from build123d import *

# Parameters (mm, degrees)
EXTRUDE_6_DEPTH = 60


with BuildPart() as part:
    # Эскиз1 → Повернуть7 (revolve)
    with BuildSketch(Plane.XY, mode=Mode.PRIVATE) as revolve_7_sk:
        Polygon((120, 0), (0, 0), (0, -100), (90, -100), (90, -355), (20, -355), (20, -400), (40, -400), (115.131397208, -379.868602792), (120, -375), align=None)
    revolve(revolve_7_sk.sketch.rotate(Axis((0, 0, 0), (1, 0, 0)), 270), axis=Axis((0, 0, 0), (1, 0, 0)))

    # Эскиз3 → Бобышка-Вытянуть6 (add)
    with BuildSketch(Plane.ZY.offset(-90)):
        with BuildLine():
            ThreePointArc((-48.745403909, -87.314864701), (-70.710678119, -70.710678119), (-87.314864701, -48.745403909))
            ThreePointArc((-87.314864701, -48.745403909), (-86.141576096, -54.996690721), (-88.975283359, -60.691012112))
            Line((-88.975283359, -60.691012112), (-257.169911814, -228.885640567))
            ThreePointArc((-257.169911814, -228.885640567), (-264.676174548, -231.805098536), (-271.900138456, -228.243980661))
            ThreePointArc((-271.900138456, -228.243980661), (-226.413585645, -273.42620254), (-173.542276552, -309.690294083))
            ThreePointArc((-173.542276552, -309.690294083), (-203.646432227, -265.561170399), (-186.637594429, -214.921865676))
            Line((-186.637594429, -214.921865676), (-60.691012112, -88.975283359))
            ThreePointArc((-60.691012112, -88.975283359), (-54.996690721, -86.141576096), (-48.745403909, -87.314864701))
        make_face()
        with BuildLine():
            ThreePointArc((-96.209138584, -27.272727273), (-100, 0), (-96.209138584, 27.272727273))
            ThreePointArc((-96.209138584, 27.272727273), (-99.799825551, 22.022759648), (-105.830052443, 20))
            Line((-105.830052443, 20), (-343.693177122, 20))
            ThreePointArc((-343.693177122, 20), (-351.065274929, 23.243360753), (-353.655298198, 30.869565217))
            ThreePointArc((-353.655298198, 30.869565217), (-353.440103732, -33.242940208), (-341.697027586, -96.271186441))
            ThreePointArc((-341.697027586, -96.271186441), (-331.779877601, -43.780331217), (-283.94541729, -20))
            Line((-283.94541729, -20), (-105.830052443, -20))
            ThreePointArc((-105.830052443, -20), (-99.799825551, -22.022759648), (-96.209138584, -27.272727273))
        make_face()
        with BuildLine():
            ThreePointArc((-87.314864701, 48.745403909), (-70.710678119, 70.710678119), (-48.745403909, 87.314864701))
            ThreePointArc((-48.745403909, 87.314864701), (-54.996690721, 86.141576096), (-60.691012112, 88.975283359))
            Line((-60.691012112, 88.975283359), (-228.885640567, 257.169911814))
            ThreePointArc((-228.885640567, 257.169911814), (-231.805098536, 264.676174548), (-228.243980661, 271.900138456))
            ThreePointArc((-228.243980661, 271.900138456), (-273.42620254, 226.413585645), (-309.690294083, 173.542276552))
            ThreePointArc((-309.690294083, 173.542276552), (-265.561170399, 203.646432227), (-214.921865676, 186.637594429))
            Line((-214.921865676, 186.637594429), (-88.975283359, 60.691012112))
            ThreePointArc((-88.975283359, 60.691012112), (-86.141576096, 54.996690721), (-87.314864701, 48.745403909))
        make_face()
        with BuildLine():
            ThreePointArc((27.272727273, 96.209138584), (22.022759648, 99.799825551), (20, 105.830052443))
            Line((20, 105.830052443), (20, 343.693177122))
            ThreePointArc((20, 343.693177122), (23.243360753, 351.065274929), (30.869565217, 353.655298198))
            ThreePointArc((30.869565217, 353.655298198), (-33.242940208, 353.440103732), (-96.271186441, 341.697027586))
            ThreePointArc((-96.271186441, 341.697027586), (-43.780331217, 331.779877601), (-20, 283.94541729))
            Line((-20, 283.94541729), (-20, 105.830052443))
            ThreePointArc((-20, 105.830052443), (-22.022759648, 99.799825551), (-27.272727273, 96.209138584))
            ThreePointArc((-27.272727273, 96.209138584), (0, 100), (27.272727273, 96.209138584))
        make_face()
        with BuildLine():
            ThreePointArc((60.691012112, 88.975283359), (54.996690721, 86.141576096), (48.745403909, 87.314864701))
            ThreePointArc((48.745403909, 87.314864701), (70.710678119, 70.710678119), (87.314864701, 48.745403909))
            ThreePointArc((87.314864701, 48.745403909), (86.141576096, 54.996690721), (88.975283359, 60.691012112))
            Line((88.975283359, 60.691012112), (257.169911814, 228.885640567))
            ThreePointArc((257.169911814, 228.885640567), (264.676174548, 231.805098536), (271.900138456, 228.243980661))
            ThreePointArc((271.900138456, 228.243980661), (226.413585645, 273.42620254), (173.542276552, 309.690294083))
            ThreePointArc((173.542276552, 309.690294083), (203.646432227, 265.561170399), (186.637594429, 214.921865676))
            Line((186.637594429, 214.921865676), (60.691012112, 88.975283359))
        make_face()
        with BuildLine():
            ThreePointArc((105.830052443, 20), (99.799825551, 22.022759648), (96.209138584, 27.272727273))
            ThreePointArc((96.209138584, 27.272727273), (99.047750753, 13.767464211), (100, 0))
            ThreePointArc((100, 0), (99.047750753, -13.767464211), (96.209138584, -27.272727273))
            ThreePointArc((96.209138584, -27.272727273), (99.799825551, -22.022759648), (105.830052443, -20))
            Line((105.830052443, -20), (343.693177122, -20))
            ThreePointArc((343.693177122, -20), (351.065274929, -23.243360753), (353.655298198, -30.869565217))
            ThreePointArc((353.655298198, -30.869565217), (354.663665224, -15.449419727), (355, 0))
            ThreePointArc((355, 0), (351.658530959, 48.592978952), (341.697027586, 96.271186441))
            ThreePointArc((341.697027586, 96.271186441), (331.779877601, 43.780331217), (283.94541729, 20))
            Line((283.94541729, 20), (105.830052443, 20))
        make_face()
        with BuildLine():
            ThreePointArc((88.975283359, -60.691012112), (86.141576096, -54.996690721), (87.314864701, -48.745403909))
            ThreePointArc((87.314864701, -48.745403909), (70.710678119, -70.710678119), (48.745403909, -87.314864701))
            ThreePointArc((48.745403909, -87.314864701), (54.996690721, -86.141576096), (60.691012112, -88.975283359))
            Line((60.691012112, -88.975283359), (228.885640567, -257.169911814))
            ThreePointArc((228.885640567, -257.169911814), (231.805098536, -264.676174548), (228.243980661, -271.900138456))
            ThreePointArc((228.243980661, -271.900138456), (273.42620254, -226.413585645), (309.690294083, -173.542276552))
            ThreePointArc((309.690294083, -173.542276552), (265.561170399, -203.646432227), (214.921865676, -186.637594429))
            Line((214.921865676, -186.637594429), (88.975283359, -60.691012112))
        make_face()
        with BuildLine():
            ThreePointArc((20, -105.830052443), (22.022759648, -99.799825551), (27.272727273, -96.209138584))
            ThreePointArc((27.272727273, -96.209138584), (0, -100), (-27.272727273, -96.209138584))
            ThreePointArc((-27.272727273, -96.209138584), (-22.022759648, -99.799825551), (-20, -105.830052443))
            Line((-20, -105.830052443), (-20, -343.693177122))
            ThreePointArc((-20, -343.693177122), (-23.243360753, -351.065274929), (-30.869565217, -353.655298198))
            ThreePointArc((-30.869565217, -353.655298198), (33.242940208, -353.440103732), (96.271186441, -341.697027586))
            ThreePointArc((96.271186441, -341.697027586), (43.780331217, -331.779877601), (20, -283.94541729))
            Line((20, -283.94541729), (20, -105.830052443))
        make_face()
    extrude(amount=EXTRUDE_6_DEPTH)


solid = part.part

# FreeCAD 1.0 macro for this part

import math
import FreeCAD as App
import Part
import Sketcher

V = App.Vector
Q = App.Units.Quantity


def add_polygon(sketch, points):
    """Adds a closed chain of lines whose ends are joined by coincident constraints."""
    first, n = sketch.GeometryCount, len(points)
    for a, b in zip(points, points[1:] + points[:1]):
        sketch.addGeometry(Part.LineSegment(App.Vector(*a, 0), App.Vector(*b, 0)), False)
    for i in range(n):
        sketch.addConstraint(Sketcher.Constraint("Coincident", first + i, 2, first + (i + 1) % n, 1))

doc = App.newDocument("Part")
params = doc.addObject("Spreadsheet::Sheet", "Params")
for row, (alias, value) in enumerate([
    ("sketch1_width", "120 mm"),
    ("sketch1_width2", "90 mm"),
    ("sketch1_width3", "70 mm"),
    ("sketch1_width4", "20 mm"),
    ("sketch1_height", "100 mm"),
    ("revolution_angle", "360 deg"),
    ("sketch2_radius", "100 mm"),
    ("sketch2_radius2", "10 mm"),
    ("sketch2_radius3", "355 mm"),
    ("sketch2_radius4", "60 mm"),
    ("pad1_length", "60 mm"),
], start=1):
    params.set(f"A{row}", alias)
    params.set(f"B{row}", "=" + value)
    params.setAlias(f"B{row}", alias)

body = doc.addObject("PartDesign::Body", "Body")

# Sketch on XY plane
sketch1 = body.newObject("Sketcher::SketchObject", "Sketch")
sketch1.AttachmentSupport = (doc.getObject("XY_Plane"), [""])
sketch1.MapMode = "FlatFace"
add_polygon(sketch1, [(120, 0), (0, 0), (0, -100), (90, -100), (90, -355), (20, -355), (20, -400), (40, -400), (115.131397, -379.868603), (120, -375)])  # lines 0-9
sketch1.addConstraint(Sketcher.Constraint("Horizontal", 0))
sketch1.addConstraint(Sketcher.Constraint("Vertical", 1))
sketch1.addConstraint(Sketcher.Constraint("Horizontal", 2))
sketch1.addConstraint(Sketcher.Constraint("Vertical", 3))
sketch1.addConstraint(Sketcher.Constraint("Horizontal", 4))
sketch1.addConstraint(Sketcher.Constraint("Vertical", 5))
sketch1.addConstraint(Sketcher.Constraint("Horizontal", 6))
sketch1.addConstraint(Sketcher.Constraint("Vertical", 9))
sketch1.addConstraint(Sketcher.Constraint("Coincident", 0, 2, -1, 1))
sketch1.addConstraint(Sketcher.Constraint("DistanceX", 0, 2, 0, 1, 120.0))
sketch1.addConstraint(Sketcher.Constraint("DistanceX", 2, 1, 2, 2, 90.0))
sketch1.addConstraint(Sketcher.Constraint("DistanceX", 4, 2, 4, 1, 70.0))
sketch1.addConstraint(Sketcher.Constraint("DistanceX", 6, 1, 6, 2, 20.0))
sketch1.addConstraint(Sketcher.Constraint("DistanceY", 1, 2, 1, 1, 100.0))
sketch1.addConstraint(Sketcher.Constraint("DistanceY", 3, 2, 3, 1, 255.0))
sketch1.addConstraint(Sketcher.Constraint("DistanceY", 5, 2, 5, 1, 45.0))
sketch1.addConstraint(Sketcher.Constraint("DistanceY", 9, 1, 9, 2, 375.0))
sketch1.addConstraint(Sketcher.Constraint("Angle", 7, Q("15 deg")))
sketch1.addConstraint(Sketcher.Constraint("Angle", 8, Q("45 deg")))
sketch1.setExpression("Constraints[19]", "Params.sketch1_width")
sketch1.setExpression("Constraints[20]", "Params.sketch1_width2")
sketch1.setExpression("Constraints[21]", "Params.sketch1_width3")
sketch1.setExpression("Constraints[22]", "Params.sketch1_width4")
sketch1.setExpression("Constraints[23]", "Params.sketch1_height")
revolution = body.newObject("PartDesign::Revolution", "Revolution")
revolution.Profile = sketch1
revolution.ReferenceAxis = (sketch1, ["H_Axis"])
revolution.setExpression("Angle", "Params.revolution_angle")

# Sketch on YZ plane
sketch2 = body.newObject("Sketcher::SketchObject", "Sketch001")
sketch2.AttachmentSupport = (doc.getObject("YZ_Plane"), [""])
sketch2.MapMode = "FlatFace"
sketch2.AttachmentOffset = App.Placement(V(0, 0, 90), App.Rotation())
sketch2.addGeometry(Part.ArcOfCircle(Part.Circle(V(0, 0, 0), V(0, 0, 1), 100), math.radians(-150.82662), math.radians(-119.17338)), False)
sketch2.addGeometry(Part.ArcOfCircle(Part.Circle(V(-53.619944, -96.046351, 0), V(0, 0, 1), 10), math.radians(60.82662), math.radians(135)), False)
sketch2.addGeometry(Part.LineSegment(V(-60.691012, -88.975283, 0), V(-228.885641, -257.169912, 0)), False)
sketch2.addGeometry(Part.ArcOfCircle(Part.Circle(V(-221.814573, -264.24098, 0), V(0, 0, 1), 10), math.radians(135), math.radians(229.988542)), False)
sketch2.addGeometry(Part.ArcOfCircle(Part.Circle(V(0, 0, 0), V(0, 0, 1), 355), math.radians(-150.734879), math.radians(-130.011458)), False)
sketch2.addGeometry(Part.ArcOfCircle(Part.Circle(V(-257.348273, -144.211188, 0), V(0, 0, 1), 60), math.radians(-150.734879), math.radians(-45)), False)
sketch2.addGeometry(Part.LineSegment(V(-214.921866, -186.637594, 0), V(-88.975283, -60.691012, 0)), False)
sketch2.addGeometry(Part.ArcOfCircle(Part.Circle(V(-96.046351, -53.619944, 0), V(0, 0, 1), 10), math.radians(-45), math.radians(29.17338)), False)
sketch2.addGeometry(Part.ArcOfCircle(Part.Circle(V(0, 0, 0), V(0, 0, 1), 100), math.radians(-105.82662), math.radians(-74.17338)), False)
sketch2.addGeometry(Part.ArcOfCircle(Part.Circle(V(30, -105.830052, 0), V(0, 0, 1), 10), math.radians(105.82662), math.radians(180)), False)
sketch2.addGeometry(Part.LineSegment(V(20, -105.830052, 0), V(20, -343.693177, 0)), False)
sketch2.addGeometry(Part.ArcOfCircle(Part.Circle(V(30, -343.693177, 0), V(0, 0, 1), 10), math.radians(-180), math.radians(-85.011458)), False)
sketch2.addGeometry(Part.ArcOfCircle(Part.Circle(V(0, 0, 0), V(0, 0, 1), 355), math.radians(-105.734879), math.radians(-85.011458)), False)
sketch2.addGeometry(Part.ArcOfCircle(Part.Circle(V(-80, -283.945417, 0), V(0, 0, 1), 60), math.radians(-105.734879), math.radians(0)), False)
sketch2.addGeometry(Part.LineSegment(V(-20, -283.945417, 0), V(-20, -105.830052, 0)), False)
sketch2.addGeometry(Part.ArcOfCircle(Part.Circle(V(-30, -105.830052, 0), V(0, 0, 1), 10), math.radians(0), math.radians(74.17338)), False)
sketch2.addGeometry(Part.ArcOfCircle(Part.Circle(V(0, 0, 0), V(0, 0, 1), 100), math.radians(-60.82662), math.radians(-29.17338)), False)
sketch2.addGeometry(Part.ArcOfCircle(Part.Circle(V(96.046351, -53.619944, 0), V(0, 0, 1), 10), math.radians(150.82662), math.radians(225)), False)
sketch2.addGeometry(Part.LineSegment(V(88.975283, -60.691012, 0), V(257.169912, -228.885641, 0)), False)
sketch2.addGeometry(Part.ArcOfCircle(Part.Circle(V(264.24098, -221.814573, 0), V(0, 0, 1), 10), math.radians(-135), math.radians(-40.011458)), False)
sketch2.addGeometry(Part.ArcOfCircle(Part.Circle(V(0, 0, 0), V(0, 0, 1), 355), math.radians(-60.734879), math.radians(-40.011458)), False)
sketch2.addGeometry(Part.ArcOfCircle(Part.Circle(V(144.211188, -257.348273, 0), V(0, 0, 1), 60), math.radians(-60.734879), math.radians(45)), False)
sketch2.addGeometry(Part.LineSegment(V(186.637594, -214.921866, 0), V(60.691012, -88.975283, 0)), False)
sketch2.addGeometry(Part.ArcOfCircle(Part.Circle(V(53.619944, -96.046351, 0), V(0, 0, 1), 10), math.radians(45), math.radians(119.17338)), False)
sketch2.addGeometry(Part.ArcOfCircle(Part.Circle(V(105.830052, 30, 0), V(0, 0, 1), 10), math.radians(-164.17338), math.radians(-90)), False)
sketch2.addGeometry(Part.LineSegment(V(105.830052, 20, 0), V(343.693177, 20, 0)), False)
sketch2.addGeometry(Part.ArcOfCircle(Part.Circle(V(343.693177, 30, 0), V(0, 0, 1), 10), math.radians(-90), math.radians(4.988542)), False)
sketch2.addGeometry(Part.ArcOfCircle(Part.Circle(V(0, 0, 0), V(0, 0, 1), 355), math.radians(-15.734879), math.radians(4.988542)), False)
sketch2.addGeometry(Part.ArcOfCircle(Part.Circle(V(283.945417, -80, 0), V(0, 0, 1), 60), math.radians(-15.734879), math.radians(90)), False)
sketch2.addGeometry(Part.LineSegment(V(283.945417, -20, 0), V(105.830052, -20, 0)), False)
sketch2.addGeometry(Part.ArcOfCircle(Part.Circle(V(105.830052, -30, 0), V(0, 0, 1), 10), math.radians(90), math.radians(164.17338)), False)
sketch2.addGeometry(Part.ArcOfCircle(Part.Circle(V(0, 0, 0), V(0, 0, 1), 100), math.radians(-15.82662), math.radians(15.82662)), False)
sketch2.addGeometry(Part.ArcOfCircle(Part.Circle(V(96.046351, 53.619944, 0), V(0, 0, 1), 10), math.radians(135), math.radians(209.17338)), False)
sketch2.addGeometry(Part.ArcOfCircle(Part.Circle(V(0, 0, 0), V(0, 0, 1), 100), math.radians(29.17338), math.radians(60.82662)), False)
sketch2.addGeometry(Part.ArcOfCircle(Part.Circle(V(53.619944, 96.046351, 0), V(0, 0, 1), 10), math.radians(-119.17338), math.radians(-45)), False)
sketch2.addGeometry(Part.LineSegment(V(60.691012, 88.975283, 0), V(228.885641, 257.169912, 0)), False)
sketch2.addGeometry(Part.ArcOfCircle(Part.Circle(V(221.814573, 264.24098, 0), V(0, 0, 1), 10), math.radians(-45), math.radians(49.988542)), False)
sketch2.addGeometry(Part.ArcOfCircle(Part.Circle(V(0, 0, 0), V(0, 0, 1), 355), math.radians(29.265121), math.radians(49.988542)), False)
sketch2.addGeometry(Part.ArcOfCircle(Part.Circle(V(257.348273, 144.211188, 0), V(0, 0, 1), 60), math.radians(29.265121), math.radians(135)), False)
sketch2.addGeometry(Part.LineSegment(V(214.921866, 186.637594, 0), V(88.975283, 60.691012, 0)), False)
sketch2.addGeometry(Part.ArcOfCircle(Part.Circle(V(30, 105.830052, 0), V(0, 0, 1), 10), math.radians(180), math.radians(254.17338)), False)
sketch2.addGeometry(Part.ArcOfCircle(Part.Circle(V(0, 0, 0), V(0, 0, 1), 100), math.radians(74.17338), math.radians(90)), False)
sketch2.addGeometry(Part.ArcOfCircle(Part.Circle(V(0, 0, 0), V(0, 0, 1), 100), math.radians(90), math.radians(105.82662)), False)
sketch2.addGeometry(Part.ArcOfCircle(Part.Circle(V(-30, 105.830052, 0), V(0, 0, 1), 10), math.radians(-74.17338), math.radians(0)), False)
sketch2.addGeometry(Part.LineSegment(V(-20, 105.830052, 0), V(-20, 343.693177, 0)), False)
sketch2.addGeometry(Part.ArcOfCircle(Part.Circle(V(-30, 343.693177, 0), V(0, 0, 1), 10), math.radians(0), math.radians(94.988542)), False)
sketch2.addGeometry(Part.ArcOfCircle(Part.Circle(V(0, 0, 0), V(0, 0, 1), 355), math.radians(90), math.radians(94.988542)), False)
sketch2.addGeometry(Part.ArcOfCircle(Part.Circle(V(0, 0, 0), V(0, 0, 1), 355), math.radians(74.265121), math.radians(90)), False)
sketch2.addGeometry(Part.ArcOfCircle(Part.Circle(V(80, 283.945417, 0), V(0, 0, 1), 60), math.radians(74.265121), math.radians(180)), False)
sketch2.addGeometry(Part.LineSegment(V(20, 283.945417, 0), V(20, 105.830052, 0)), False)
sketch2.addGeometry(Part.ArcOfCircle(Part.Circle(V(-53.619944, 96.046351, 0), V(0, 0, 1), 10), math.radians(-135), math.radians(-60.82662)), False)
sketch2.addGeometry(Part.ArcOfCircle(Part.Circle(V(0, 0, 0), V(0, 0, 1), 100), math.radians(119.17338), math.radians(150.82662)), False)
sketch2.addGeometry(Part.ArcOfCircle(Part.Circle(V(-96.046351, 53.619944, 0), V(0, 0, 1), 10), math.radians(-29.17338), math.radians(45)), False)
sketch2.addGeometry(Part.LineSegment(V(-88.975283, 60.691012, 0), V(-257.169912, 228.885641, 0)), False)
sketch2.addGeometry(Part.ArcOfCircle(Part.Circle(V(-264.24098, 221.814573, 0), V(0, 0, 1), 10), math.radians(45), math.radians(139.988542)), False)
sketch2.addGeometry(Part.ArcOfCircle(Part.Circle(V(0, 0, 0), V(0, 0, 1), 355), math.radians(119.265121), math.radians(139.988542)), False)
sketch2.addGeometry(Part.ArcOfCircle(Part.Circle(V(-144.211188, 257.348273, 0), V(0, 0, 1), 60), math.radians(119.265121), math.radians(225)), False)
sketch2.addGeometry(Part.LineSegment(V(-186.637594, 214.921866, 0), V(-60.691012, 88.975283, 0)), False)
sketch2.addGeometry(Part.ArcOfCircle(Part.Circle(V(-105.830052, 30, 0), V(0, 0, 1), 10), math.radians(-90), math.radians(-15.82662)), False)
sketch2.addGeometry(Part.ArcOfCircle(Part.Circle(V(0, 0, 0), V(0, 0, 1), 100), math.radians(164.17338), math.radians(195.82662)), False)
sketch2.addGeometry(Part.ArcOfCircle(Part.Circle(V(-105.830052, -30, 0), V(0, 0, 1), 10), math.radians(15.82662), math.radians(90)), False)
sketch2.addGeometry(Part.LineSegment(V(-105.830052, -20, 0), V(-343.693177, -20, 0)), False)
sketch2.addGeometry(Part.ArcOfCircle(Part.Circle(V(-343.693177, -30, 0), V(0, 0, 1), 10), math.radians(90), math.radians(184.988542)), False)
sketch2.addGeometry(Part.ArcOfCircle(Part.Circle(V(0, 0, 0), V(0, 0, 1), 355), math.radians(164.265121), math.radians(184.988542)), False)
sketch2.addGeometry(Part.ArcOfCircle(Part.Circle(V(-283.945417, 80, 0), V(0, 0, 1), 60), math.radians(164.265121), math.radians(270)), False)
sketch2.addGeometry(Part.LineSegment(V(-283.945417, 20, 0), V(-105.830052, 20, 0)), False)
sketch2.addConstraint(Sketcher.Constraint("Tangent", 0, 2, 1, 1))
sketch2.addConstraint(Sketcher.Constraint("Tangent", 1, 2, 2, 1))
sketch2.addConstraint(Sketcher.Constraint("Tangent", 2, 2, 3, 1))
sketch2.addConstraint(Sketcher.Constraint("Tangent", 3, 2, 4, 2))
sketch2.addConstraint(Sketcher.Constraint("Tangent", 4, 1, 5, 1))
sketch2.addConstraint(Sketcher.Constraint("Tangent", 5, 2, 6, 1))
sketch2.addConstraint(Sketcher.Constraint("Tangent", 6, 2, 7, 1))
sketch2.addConstraint(Sketcher.Constraint("Tangent", 7, 2, 0, 1))
sketch2.addConstraint(Sketcher.Constraint("Tangent", 8, 2, 9, 1))
sketch2.addConstraint(Sketcher.Constraint("Tangent", 9, 2, 10, 1))
sketch2.addConstraint(Sketcher.Constraint("Tangent", 10, 2, 11, 1))
sketch2.addConstraint(Sketcher.Constraint("Tangent", 11, 2, 12, 2))
sketch2.addConstraint(Sketcher.Constraint("Tangent", 12, 1, 13, 1))
sketch2.addConstraint(Sketcher.Constraint("Tangent", 13, 2, 14, 1))
sketch2.addConstraint(Sketcher.Constraint("Tangent", 14, 2, 15, 1))
sketch2.addConstraint(Sketcher.Constraint("Tangent", 15, 2, 8, 1))
sketch2.addConstraint(Sketcher.Constraint("Tangent", 16, 2, 17, 1))
sketch2.addConstraint(Sketcher.Constraint("Tangent", 17, 2, 18, 1))
sketch2.addConstraint(Sketcher.Constraint("Tangent", 18, 2, 19, 1))
sketch2.addConstraint(Sketcher.Constraint("Tangent", 19, 2, 20, 2))
sketch2.addConstraint(Sketcher.Constraint("Tangent", 20, 1, 21, 1))
sketch2.addConstraint(Sketcher.Constraint("Tangent", 21, 2, 22, 1))
sketch2.addConstraint(Sketcher.Constraint("Tangent", 22, 2, 23, 1))
sketch2.addConstraint(Sketcher.Constraint("Tangent", 23, 2, 16, 1))
sketch2.addConstraint(Sketcher.Constraint("Tangent", 24, 2, 25, 1))
sketch2.addConstraint(Sketcher.Constraint("Tangent", 25, 2, 26, 1))
sketch2.addConstraint(Sketcher.Constraint("Tangent", 26, 2, 27, 2))
sketch2.addConstraint(Sketcher.Constraint("Tangent", 27, 1, 28, 1))
sketch2.addConstraint(Sketcher.Constraint("Tangent", 28, 2, 29, 1))
sketch2.addConstraint(Sketcher.Constraint("Tangent", 29, 2, 30, 1))
sketch2.addConstraint(Sketcher.Constraint("Tangent", 30, 2, 31, 1))
sketch2.addConstraint(Sketcher.Constraint("Tangent", 31, 2, 24, 1))
sketch2.addConstraint(Sketcher.Constraint("Tangent", 32, 2, 33, 1))
sketch2.addConstraint(Sketcher.Constraint("Tangent", 33, 2, 34, 1))
sketch2.addConstraint(Sketcher.Constraint("Tangent", 34, 2, 35, 1))
sketch2.addConstraint(Sketcher.Constraint("Tangent", 35, 2, 36, 1))
sketch2.addConstraint(Sketcher.Constraint("Tangent", 36, 2, 37, 2))
sketch2.addConstraint(Sketcher.Constraint("Tangent", 37, 1, 38, 1))
sketch2.addConstraint(Sketcher.Constraint("Tangent", 38, 2, 39, 1))
sketch2.addConstraint(Sketcher.Constraint("Tangent", 39, 2, 32, 1))
sketch2.addConstraint(Sketcher.Constraint("Tangent", 40, 2, 41, 1))
sketch2.addConstraint(Sketcher.Constraint("Tangent", 41, 2, 42, 1))
sketch2.addConstraint(Sketcher.Constraint("Tangent", 42, 2, 43, 1))
sketch2.addConstraint(Sketcher.Constraint("Tangent", 43, 2, 44, 1))
sketch2.addConstraint(Sketcher.Constraint("Tangent", 44, 2, 45, 1))
sketch2.addConstraint(Sketcher.Constraint("Tangent", 45, 2, 46, 2))
sketch2.addConstraint(Sketcher.Constraint("Tangent", 46, 1, 47, 2))
sketch2.addConstraint(Sketcher.Constraint("Tangent", 47, 1, 48, 1))
sketch2.addConstraint(Sketcher.Constraint("Tangent", 48, 2, 49, 1))
sketch2.addConstraint(Sketcher.Constraint("Tangent", 49, 2, 40, 1))
sketch2.addConstraint(Sketcher.Constraint("Tangent", 50, 2, 51, 1))
sketch2.addConstraint(Sketcher.Constraint("Tangent", 51, 2, 52, 1))
sketch2.addConstraint(Sketcher.Constraint("Tangent", 52, 2, 53, 1))
sketch2.addConstraint(Sketcher.Constraint("Tangent", 53, 2, 54, 1))
sketch2.addConstraint(Sketcher.Constraint("Tangent", 54, 2, 55, 2))
sketch2.addConstraint(Sketcher.Constraint("Tangent", 55, 1, 56, 1))
sketch2.addConstraint(Sketcher.Constraint("Tangent", 56, 2, 57, 1))
sketch2.addConstraint(Sketcher.Constraint("Tangent", 57, 2, 50, 1))
sketch2.addConstraint(Sketcher.Constraint("Tangent", 58, 2, 59, 1))
sketch2.addConstraint(Sketcher.Constraint("Tangent", 59, 2, 60, 1))
sketch2.addConstraint(Sketcher.Constraint("Tangent", 60, 2, 61, 1))
sketch2.addConstraint(Sketcher.Constraint("Tangent", 61, 2, 62, 1))
sketch2.addConstraint(Sketcher.Constraint("Tangent", 62, 2, 63, 2))
sketch2.addConstraint(Sketcher.Constraint("Tangent", 63, 1, 64, 1))
sketch2.addConstraint(Sketcher.Constraint("Tangent", 64, 2, 65, 1))
sketch2.addConstraint(Sketcher.Constraint("Tangent", 65, 2, 58, 1))
sketch2.addConstraint(Sketcher.Constraint("Vertical", 10))
sketch2.addConstraint(Sketcher.Constraint("Vertical", 14))
sketch2.addConstraint(Sketcher.Constraint("Horizontal", 25))
sketch2.addConstraint(Sketcher.Constraint("Horizontal", 29))
sketch2.addConstraint(Sketcher.Constraint("Vertical", 44))
sketch2.addConstraint(Sketcher.Constraint("Vertical", 49))
sketch2.addConstraint(Sketcher.Constraint("Horizontal", 61))
sketch2.addConstraint(Sketcher.Constraint("Horizontal", 65))
sketch2.addConstraint(Sketcher.Constraint("Coincident", 0, 3, -1, 1))
sketch2.addConstraint(Sketcher.Constraint("Coincident", 4, 3, -1, 1))
sketch2.addConstraint(Sketcher.Constraint("Coincident", 8, 3, -1, 1))
sketch2.addConstraint(Sketcher.Constraint("Coincident", 12, 3, -1, 1))
sketch2.addConstraint(Sketcher.Constraint("Coincident", 16, 3, -1, 1))
sketch2.addConstraint(Sketcher.Constraint("Coincident", 20, 3, -1, 1))
sketch2.addConstraint(Sketcher.Constraint("Coincident", 27, 3, -1, 1))
sketch2.addConstraint(Sketcher.Constraint("Coincident", 31, 3, -1, 1))
sketch2.addConstraint(Sketcher.Constraint("Coincident", 33, 3, -1, 1))
sketch2.addConstraint(Sketcher.Constraint("Coincident", 37, 3, -1, 1))
sketch2.addConstraint(Sketcher.Constraint("Coincident", 41, 3, -1, 1))
sketch2.addConstraint(Sketcher.Constraint("Coincident", 46, 3, -1, 1))
sketch2.addConstraint(Sketcher.Constraint("Coincident", 51, 3, -1, 1))
sketch2.addConstraint(Sketcher.Constraint("Coincident", 55, 3, -1, 1))
sketch2.addConstraint(Sketcher.Constraint("Coincident", 59, 3, -1, 1))
sketch2.addConstraint(Sketcher.Constraint("Coincident", 63, 3, -1, 1))
sketch2.addConstraint(Sketcher.Constraint("Equal", 1, 3))
sketch2.addConstraint(Sketcher.Constraint("Equal", 3, 7))
sketch2.addConstraint(Sketcher.Constraint("Equal", 0, 8))
sketch2.addConstraint(Sketcher.Constraint("Equal", 7, 9))
sketch2.addConstraint(Sketcher.Constraint("Equal", 9, 11))
sketch2.addConstraint(Sketcher.Constraint("Equal", 4, 12))
sketch2.addConstraint(Sketcher.Constraint("Equal", 5, 13))
sketch2.addConstraint(Sketcher.Constraint("Equal", 11, 15))
sketch2.addConstraint(Sketcher.Constraint("Equal", 8, 16))
sketch2.addConstraint(Sketcher.Constraint("Equal", 15, 17))
sketch2.addConstraint(Sketcher.Constraint("Equal", 17, 19))
sketch2.addConstraint(Sketcher.Constraint("Equal", 12, 20))
sketch2.addConstraint(Sketcher.Constraint("Equal", 13, 21))
sketch2.addConstraint(Sketcher.Constraint("Equal", 19, 23))
sketch2.addConstraint(Sketcher.Constraint("Equal", 23, 24))
sketch2.addConstraint(Sketcher.Constraint("Equal", 24, 26))
sketch2.addConstraint(Sketcher.Constraint("Equal", 20, 27))
sketch2.addConstraint(Sketcher.Constraint("Equal", 21, 28))
sketch2.addConstraint(Sketcher.Constraint("Equal", 26, 30))
sketch2.addConstraint(Sketcher.Constraint("Equal", 16, 31))
sketch2.addConstraint(Sketcher.Constraint("Equal", 30, 32))
sketch2.addConstraint(Sketcher.Constraint("Equal", 31, 33))
sketch2.addConstraint(Sketcher.Constraint("Equal", 32, 34))
sketch2.addConstraint(Sketcher.Constraint("Equal", 34, 36))
sketch2.addConstraint(Sketcher.Constraint("Equal", 27, 37))
sketch2.addConstraint(Sketcher.Constraint("Equal", 28, 38))
sketch2.addConstraint(Sketcher.Constraint("Equal", 36, 40))
sketch2.addConstraint(Sketcher.Constraint("Equal", 33, 41))
sketch2.addConstraint(Sketcher.Constraint("Equal", 41, 42))
sketch2.addConstraint(Sketcher.Constraint("Equal", 40, 43))
sketch2.addConstraint(Sketcher.Constraint("Equal", 43, 45))
sketch2.addConstraint(Sketcher.Constraint("Equal", 37, 46))
sketch2.addConstraint(Sketcher.Constraint("Equal", 46, 47))
sketch2.addConstraint(Sketcher.Constraint("Equal", 38, 48))
sketch2.addConstraint(Sketcher.Constraint("Equal", 45, 50))
sketch2.addConstraint(Sketcher.Constraint("Equal", 42, 51))
sketch2.addConstraint(Sketcher.Constraint("Equal", 50, 52))
sketch2.addConstraint(Sketcher.Constraint("Equal", 52, 54))
sketch2.addConstraint(Sketcher.Constraint("Equal", 47, 55))
sketch2.addConstraint(Sketcher.Constraint("Equal", 48, 56))
sketch2.addConstraint(Sketcher.Constraint("Equal", 54, 58))
sketch2.addConstraint(Sketcher.Constraint("Equal", 51, 59))
sketch2.addConstraint(Sketcher.Constraint("Equal", 58, 60))
sketch2.addConstraint(Sketcher.Constraint("Equal", 60, 62))
sketch2.addConstraint(Sketcher.Constraint("Equal", 55, 63))
sketch2.addConstraint(Sketcher.Constraint("Equal", 56, 64))
sketch2.addConstraint(Sketcher.Constraint("Symmetric", 1, 2, 34, 2, -1, 1))
sketch2.addConstraint(Sketcher.Constraint("Symmetric", 5, 2, 38, 2, -1, 1))
sketch2.addConstraint(Sketcher.Constraint("Symmetric", 17, 2, 52, 2, -1, 1))
sketch2.addConstraint(Sketcher.Constraint("Symmetric", 21, 2, 56, 2, -1, 1))
sketch2.addConstraint(Sketcher.Constraint("Symmetric", 6, 2, 17, 2, -2))
sketch2.addConstraint(Sketcher.Constraint("Symmetric", 1, 2, 22, 2, -2))
sketch2.addConstraint(Sketcher.Constraint("PointOnObject", 41, 2, -2))
sketch2.addConstraint(Sketcher.Constraint("PointOnObject", 46, 1, -2))
sketch2.addConstraint(Sketcher.Constraint("Parallel", 2, 6))
sketch2.addConstraint(Sketcher.Constraint("Perpendicular", 6, 18))
sketch2.addConstraint(Sketcher.Constraint("Horizontal", 9, 3, 15, 3))
sketch2.addConstraint(Sketcher.Constraint("Horizontal", 40, 3, 43, 3))
sketch2.addConstraint(Sketcher.Constraint("Horizontal", 26, 3, 58, 3))
sketch2.addConstraint(Sketcher.Constraint("Horizontal", 30, 3, 60, 3))
sketch2.addConstraint(Sketcher.Constraint("Vertical", 24, 3, 30, 3))
sketch2.addConstraint(Sketcher.Constraint("Vertical", 11, 3, 40, 3))
sketch2.addConstraint(Sketcher.Constraint("Equal", 61, 10))
sketch2.addConstraint(Sketcher.Constraint("Equal", 2, 18))
sketch2.addConstraint(Sketcher.Constraint("Radius", 0, 100.0))
sketch2.addConstraint(Sketcher.Constraint("Radius", 1, 10.0))
sketch2.addConstraint(Sketcher.Constraint("Radius", 4, 355.0))
sketch2.addConstraint(Sketcher.Constraint("Radius", 5, 60.0))
sketch2.addConstraint(Sketcher.Constraint("DistanceX", -1, 1, 9, 3, 30.0))
sketch2.addConstraint(Sketcher.Constraint("DistanceY", 1, 3, -1, 1, 96.046351))
sketch2.setExpression("Constraints[154]", "Params.sketch2_radius")
sketch2.setExpression("Constraints[155]", "Params.sketch2_radius2")
sketch2.setExpression("Constraints[156]", "Params.sketch2_radius3")
sketch2.setExpression("Constraints[157]", "Params.sketch2_radius4")
pad1 = body.newObject("PartDesign::Pad", "Pad")
pad1.Profile = sketch2
pad1.setExpression("Length", "Params.pad1_length")
pad1.Reversed = True

doc.recompute()
